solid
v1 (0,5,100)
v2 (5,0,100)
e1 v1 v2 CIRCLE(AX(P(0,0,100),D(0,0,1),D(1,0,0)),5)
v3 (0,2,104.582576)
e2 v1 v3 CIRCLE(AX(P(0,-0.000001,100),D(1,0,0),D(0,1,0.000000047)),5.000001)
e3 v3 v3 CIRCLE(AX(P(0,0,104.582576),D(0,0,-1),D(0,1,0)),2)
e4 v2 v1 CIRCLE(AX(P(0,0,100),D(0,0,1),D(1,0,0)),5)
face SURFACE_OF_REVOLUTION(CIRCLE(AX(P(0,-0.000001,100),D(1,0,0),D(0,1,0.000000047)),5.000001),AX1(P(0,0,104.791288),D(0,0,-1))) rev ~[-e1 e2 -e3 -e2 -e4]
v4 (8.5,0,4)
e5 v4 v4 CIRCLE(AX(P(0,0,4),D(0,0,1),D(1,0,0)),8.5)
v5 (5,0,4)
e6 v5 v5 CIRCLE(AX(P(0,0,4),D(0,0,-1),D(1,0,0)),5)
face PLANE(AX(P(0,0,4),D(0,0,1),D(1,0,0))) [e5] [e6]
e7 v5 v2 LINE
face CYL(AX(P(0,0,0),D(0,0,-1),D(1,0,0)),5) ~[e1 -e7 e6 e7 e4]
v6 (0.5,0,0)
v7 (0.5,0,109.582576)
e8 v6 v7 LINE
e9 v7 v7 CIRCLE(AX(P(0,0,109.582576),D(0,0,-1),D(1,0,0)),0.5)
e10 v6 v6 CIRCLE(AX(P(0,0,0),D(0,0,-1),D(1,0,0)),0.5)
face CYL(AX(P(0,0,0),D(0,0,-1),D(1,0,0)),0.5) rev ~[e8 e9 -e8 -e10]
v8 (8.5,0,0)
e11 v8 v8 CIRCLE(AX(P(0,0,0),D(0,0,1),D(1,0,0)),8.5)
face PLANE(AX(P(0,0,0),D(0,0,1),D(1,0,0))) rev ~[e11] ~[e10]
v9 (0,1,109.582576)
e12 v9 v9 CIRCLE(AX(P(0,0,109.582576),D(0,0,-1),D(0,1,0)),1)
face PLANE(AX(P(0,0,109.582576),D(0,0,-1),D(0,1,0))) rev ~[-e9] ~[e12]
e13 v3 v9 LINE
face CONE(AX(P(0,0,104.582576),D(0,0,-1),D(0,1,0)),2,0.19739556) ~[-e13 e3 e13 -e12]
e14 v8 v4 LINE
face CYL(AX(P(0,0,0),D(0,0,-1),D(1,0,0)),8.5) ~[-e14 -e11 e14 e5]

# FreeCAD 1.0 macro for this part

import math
import FreeCAD as App
import Part
import Sketcher

V = App.Vector

doc = App.newDocument("Part")
body = doc.addObject("PartDesign::Body", "Body")

sketch1 = doc.addObject("Sketcher::SketchObject", "Sketch")
body.addObject(sketch1)
sketch1.AttachmentSupport = (doc.XY_Plane, [""])
sketch1.MapMode = "FlatFace"
sketch1.addGeometry(Part.Circle(V(0, 0, 0), V(0, 0, 1), 8), False)
sketch1.addConstraint(Sketcher.Constraint("Coincident", 0, 3, -1, 1))
sketch1.addConstraint(Sketcher.Constraint("Diameter", 0, 17.0))
pad1 = doc.addObject("PartDesign::Pad", "Pad")
body.addObject(pad1)
pad1.Profile = sketch1
pad1.Length = 4

sketch2 = doc.addObject("Sketcher::SketchObject", "Sketch001")
body.addObject(sketch2)
sketch2.AttachmentSupport = (doc.XY_Plane, [""])
sketch2.MapMode = "FlatFace"
sketch2.addGeometry(Part.Circle(V(0, 0, 0), V(0, 0, 1), 5), False)
sketch2.addConstraint(Sketcher.Constraint("Coincident", 0, 3, -1, 1))
sketch2.addConstraint(Sketcher.Constraint("Diameter", 0, 10.0))
pad2 = doc.addObject("PartDesign::Pad", "Pad001")
body.addObject(pad2)
pad2.Profile = sketch2
pad2.Length = 100

sketch3 = doc.addObject("Sketcher::SketchObject", "Sketch002")
body.addObject(sketch3)
sketch3.AttachmentSupport = (doc.YZ_Plane, [""])
sketch3.MapMode = "FlatFace"
sketch3.addGeometry(Part.LineSegment(V(0, 100, 0), V(5, 100, 0)), False)
sketch3.addGeometry(Part.ArcOfCircle(Part.Circle(V(0, 100, 0), V(0, 0, 1), 5), math.radians(0), math.radians(66)), False)
sketch3.addGeometry(Part.LineSegment(V(2, 104.6, 0), V(1, 109.6, 0)), False)
sketch3.addGeometry(Part.LineSegment(V(1, 109.6, 0), V(0, 109.6, 0)), False)
sketch3.addGeometry(Part.LineSegment(V(0, 109.6, 0), V(0, 100, 0)), False)
sketch3.addConstraint(Sketcher.Constraint("Coincident", 0, 2, 1, 1))
sketch3.addConstraint(Sketcher.Constraint("Coincident", 1, 2, 2, 1))
sketch3.addConstraint(Sketcher.Constraint("Coincident", 2, 2, 3, 1))
sketch3.addConstraint(Sketcher.Constraint("Coincident", 3, 2, 4, 1))
sketch3.addConstraint(Sketcher.Constraint("Coincident", 4, 2, 0, 1))
sketch3.addConstraint(Sketcher.Constraint("Horizontal", 0))
sketch3.addConstraint(Sketcher.Constraint("Horizontal", 3))
sketch3.addConstraint(Sketcher.Constraint("Vertical", 4))
sketch3.addConstraint(Sketcher.Constraint("Coincident", 4, 2, 1, 3))
sketch3.addConstraint(Sketcher.Constraint("PointOnObject", 1, 3, -2))
sketch3.addConstraint(Sketcher.Constraint("Radius", 1, 5.000001))
sketch3.addConstraint(Sketcher.Constraint("DistanceX", 3, 2, 3, 1, 1.0))
sketch3.addConstraint(Sketcher.Constraint("DistanceY", -1, 1, 1, 3, 100.0))
sketch3.addConstraint(Sketcher.Constraint("DistanceX", -1, 1, 1, 2, 2.0))
sketch3.addConstraint(Sketcher.Constraint("DistanceY", 1, 2, 2, 2, 5.0))
revolution = doc.addObject("PartDesign::Revolution", "Revolution")
body.addObject(revolution)
revolution.Profile = sketch3
revolution.ReferenceAxis = (sketch3, ["V_Axis"])
revolution.Angle = 360

sketch4 = doc.addObject("Sketcher::SketchObject", "Sketch003")
body.addObject(sketch4)
sketch4.AttachmentSupport = (doc.XY_Plane, [""])
sketch4.MapMode = "FlatFace"
sketch4.addGeometry(Part.Circle(V(0, 0, 0), V(0, 0, 1), 0.5), False)
sketch4.addConstraint(Sketcher.Constraint("Coincident", 0, 3, -1, 1))
sketch4.addConstraint(Sketcher.Constraint("Diameter", 0, 1.0))
pocket1 = doc.addObject("PartDesign::Pocket", "Pocket")
body.addObject(pocket1)
pocket1.Profile = sketch4
pocket1.Length = 118.6
pocket1.Reversed = True

doc.recompute()
